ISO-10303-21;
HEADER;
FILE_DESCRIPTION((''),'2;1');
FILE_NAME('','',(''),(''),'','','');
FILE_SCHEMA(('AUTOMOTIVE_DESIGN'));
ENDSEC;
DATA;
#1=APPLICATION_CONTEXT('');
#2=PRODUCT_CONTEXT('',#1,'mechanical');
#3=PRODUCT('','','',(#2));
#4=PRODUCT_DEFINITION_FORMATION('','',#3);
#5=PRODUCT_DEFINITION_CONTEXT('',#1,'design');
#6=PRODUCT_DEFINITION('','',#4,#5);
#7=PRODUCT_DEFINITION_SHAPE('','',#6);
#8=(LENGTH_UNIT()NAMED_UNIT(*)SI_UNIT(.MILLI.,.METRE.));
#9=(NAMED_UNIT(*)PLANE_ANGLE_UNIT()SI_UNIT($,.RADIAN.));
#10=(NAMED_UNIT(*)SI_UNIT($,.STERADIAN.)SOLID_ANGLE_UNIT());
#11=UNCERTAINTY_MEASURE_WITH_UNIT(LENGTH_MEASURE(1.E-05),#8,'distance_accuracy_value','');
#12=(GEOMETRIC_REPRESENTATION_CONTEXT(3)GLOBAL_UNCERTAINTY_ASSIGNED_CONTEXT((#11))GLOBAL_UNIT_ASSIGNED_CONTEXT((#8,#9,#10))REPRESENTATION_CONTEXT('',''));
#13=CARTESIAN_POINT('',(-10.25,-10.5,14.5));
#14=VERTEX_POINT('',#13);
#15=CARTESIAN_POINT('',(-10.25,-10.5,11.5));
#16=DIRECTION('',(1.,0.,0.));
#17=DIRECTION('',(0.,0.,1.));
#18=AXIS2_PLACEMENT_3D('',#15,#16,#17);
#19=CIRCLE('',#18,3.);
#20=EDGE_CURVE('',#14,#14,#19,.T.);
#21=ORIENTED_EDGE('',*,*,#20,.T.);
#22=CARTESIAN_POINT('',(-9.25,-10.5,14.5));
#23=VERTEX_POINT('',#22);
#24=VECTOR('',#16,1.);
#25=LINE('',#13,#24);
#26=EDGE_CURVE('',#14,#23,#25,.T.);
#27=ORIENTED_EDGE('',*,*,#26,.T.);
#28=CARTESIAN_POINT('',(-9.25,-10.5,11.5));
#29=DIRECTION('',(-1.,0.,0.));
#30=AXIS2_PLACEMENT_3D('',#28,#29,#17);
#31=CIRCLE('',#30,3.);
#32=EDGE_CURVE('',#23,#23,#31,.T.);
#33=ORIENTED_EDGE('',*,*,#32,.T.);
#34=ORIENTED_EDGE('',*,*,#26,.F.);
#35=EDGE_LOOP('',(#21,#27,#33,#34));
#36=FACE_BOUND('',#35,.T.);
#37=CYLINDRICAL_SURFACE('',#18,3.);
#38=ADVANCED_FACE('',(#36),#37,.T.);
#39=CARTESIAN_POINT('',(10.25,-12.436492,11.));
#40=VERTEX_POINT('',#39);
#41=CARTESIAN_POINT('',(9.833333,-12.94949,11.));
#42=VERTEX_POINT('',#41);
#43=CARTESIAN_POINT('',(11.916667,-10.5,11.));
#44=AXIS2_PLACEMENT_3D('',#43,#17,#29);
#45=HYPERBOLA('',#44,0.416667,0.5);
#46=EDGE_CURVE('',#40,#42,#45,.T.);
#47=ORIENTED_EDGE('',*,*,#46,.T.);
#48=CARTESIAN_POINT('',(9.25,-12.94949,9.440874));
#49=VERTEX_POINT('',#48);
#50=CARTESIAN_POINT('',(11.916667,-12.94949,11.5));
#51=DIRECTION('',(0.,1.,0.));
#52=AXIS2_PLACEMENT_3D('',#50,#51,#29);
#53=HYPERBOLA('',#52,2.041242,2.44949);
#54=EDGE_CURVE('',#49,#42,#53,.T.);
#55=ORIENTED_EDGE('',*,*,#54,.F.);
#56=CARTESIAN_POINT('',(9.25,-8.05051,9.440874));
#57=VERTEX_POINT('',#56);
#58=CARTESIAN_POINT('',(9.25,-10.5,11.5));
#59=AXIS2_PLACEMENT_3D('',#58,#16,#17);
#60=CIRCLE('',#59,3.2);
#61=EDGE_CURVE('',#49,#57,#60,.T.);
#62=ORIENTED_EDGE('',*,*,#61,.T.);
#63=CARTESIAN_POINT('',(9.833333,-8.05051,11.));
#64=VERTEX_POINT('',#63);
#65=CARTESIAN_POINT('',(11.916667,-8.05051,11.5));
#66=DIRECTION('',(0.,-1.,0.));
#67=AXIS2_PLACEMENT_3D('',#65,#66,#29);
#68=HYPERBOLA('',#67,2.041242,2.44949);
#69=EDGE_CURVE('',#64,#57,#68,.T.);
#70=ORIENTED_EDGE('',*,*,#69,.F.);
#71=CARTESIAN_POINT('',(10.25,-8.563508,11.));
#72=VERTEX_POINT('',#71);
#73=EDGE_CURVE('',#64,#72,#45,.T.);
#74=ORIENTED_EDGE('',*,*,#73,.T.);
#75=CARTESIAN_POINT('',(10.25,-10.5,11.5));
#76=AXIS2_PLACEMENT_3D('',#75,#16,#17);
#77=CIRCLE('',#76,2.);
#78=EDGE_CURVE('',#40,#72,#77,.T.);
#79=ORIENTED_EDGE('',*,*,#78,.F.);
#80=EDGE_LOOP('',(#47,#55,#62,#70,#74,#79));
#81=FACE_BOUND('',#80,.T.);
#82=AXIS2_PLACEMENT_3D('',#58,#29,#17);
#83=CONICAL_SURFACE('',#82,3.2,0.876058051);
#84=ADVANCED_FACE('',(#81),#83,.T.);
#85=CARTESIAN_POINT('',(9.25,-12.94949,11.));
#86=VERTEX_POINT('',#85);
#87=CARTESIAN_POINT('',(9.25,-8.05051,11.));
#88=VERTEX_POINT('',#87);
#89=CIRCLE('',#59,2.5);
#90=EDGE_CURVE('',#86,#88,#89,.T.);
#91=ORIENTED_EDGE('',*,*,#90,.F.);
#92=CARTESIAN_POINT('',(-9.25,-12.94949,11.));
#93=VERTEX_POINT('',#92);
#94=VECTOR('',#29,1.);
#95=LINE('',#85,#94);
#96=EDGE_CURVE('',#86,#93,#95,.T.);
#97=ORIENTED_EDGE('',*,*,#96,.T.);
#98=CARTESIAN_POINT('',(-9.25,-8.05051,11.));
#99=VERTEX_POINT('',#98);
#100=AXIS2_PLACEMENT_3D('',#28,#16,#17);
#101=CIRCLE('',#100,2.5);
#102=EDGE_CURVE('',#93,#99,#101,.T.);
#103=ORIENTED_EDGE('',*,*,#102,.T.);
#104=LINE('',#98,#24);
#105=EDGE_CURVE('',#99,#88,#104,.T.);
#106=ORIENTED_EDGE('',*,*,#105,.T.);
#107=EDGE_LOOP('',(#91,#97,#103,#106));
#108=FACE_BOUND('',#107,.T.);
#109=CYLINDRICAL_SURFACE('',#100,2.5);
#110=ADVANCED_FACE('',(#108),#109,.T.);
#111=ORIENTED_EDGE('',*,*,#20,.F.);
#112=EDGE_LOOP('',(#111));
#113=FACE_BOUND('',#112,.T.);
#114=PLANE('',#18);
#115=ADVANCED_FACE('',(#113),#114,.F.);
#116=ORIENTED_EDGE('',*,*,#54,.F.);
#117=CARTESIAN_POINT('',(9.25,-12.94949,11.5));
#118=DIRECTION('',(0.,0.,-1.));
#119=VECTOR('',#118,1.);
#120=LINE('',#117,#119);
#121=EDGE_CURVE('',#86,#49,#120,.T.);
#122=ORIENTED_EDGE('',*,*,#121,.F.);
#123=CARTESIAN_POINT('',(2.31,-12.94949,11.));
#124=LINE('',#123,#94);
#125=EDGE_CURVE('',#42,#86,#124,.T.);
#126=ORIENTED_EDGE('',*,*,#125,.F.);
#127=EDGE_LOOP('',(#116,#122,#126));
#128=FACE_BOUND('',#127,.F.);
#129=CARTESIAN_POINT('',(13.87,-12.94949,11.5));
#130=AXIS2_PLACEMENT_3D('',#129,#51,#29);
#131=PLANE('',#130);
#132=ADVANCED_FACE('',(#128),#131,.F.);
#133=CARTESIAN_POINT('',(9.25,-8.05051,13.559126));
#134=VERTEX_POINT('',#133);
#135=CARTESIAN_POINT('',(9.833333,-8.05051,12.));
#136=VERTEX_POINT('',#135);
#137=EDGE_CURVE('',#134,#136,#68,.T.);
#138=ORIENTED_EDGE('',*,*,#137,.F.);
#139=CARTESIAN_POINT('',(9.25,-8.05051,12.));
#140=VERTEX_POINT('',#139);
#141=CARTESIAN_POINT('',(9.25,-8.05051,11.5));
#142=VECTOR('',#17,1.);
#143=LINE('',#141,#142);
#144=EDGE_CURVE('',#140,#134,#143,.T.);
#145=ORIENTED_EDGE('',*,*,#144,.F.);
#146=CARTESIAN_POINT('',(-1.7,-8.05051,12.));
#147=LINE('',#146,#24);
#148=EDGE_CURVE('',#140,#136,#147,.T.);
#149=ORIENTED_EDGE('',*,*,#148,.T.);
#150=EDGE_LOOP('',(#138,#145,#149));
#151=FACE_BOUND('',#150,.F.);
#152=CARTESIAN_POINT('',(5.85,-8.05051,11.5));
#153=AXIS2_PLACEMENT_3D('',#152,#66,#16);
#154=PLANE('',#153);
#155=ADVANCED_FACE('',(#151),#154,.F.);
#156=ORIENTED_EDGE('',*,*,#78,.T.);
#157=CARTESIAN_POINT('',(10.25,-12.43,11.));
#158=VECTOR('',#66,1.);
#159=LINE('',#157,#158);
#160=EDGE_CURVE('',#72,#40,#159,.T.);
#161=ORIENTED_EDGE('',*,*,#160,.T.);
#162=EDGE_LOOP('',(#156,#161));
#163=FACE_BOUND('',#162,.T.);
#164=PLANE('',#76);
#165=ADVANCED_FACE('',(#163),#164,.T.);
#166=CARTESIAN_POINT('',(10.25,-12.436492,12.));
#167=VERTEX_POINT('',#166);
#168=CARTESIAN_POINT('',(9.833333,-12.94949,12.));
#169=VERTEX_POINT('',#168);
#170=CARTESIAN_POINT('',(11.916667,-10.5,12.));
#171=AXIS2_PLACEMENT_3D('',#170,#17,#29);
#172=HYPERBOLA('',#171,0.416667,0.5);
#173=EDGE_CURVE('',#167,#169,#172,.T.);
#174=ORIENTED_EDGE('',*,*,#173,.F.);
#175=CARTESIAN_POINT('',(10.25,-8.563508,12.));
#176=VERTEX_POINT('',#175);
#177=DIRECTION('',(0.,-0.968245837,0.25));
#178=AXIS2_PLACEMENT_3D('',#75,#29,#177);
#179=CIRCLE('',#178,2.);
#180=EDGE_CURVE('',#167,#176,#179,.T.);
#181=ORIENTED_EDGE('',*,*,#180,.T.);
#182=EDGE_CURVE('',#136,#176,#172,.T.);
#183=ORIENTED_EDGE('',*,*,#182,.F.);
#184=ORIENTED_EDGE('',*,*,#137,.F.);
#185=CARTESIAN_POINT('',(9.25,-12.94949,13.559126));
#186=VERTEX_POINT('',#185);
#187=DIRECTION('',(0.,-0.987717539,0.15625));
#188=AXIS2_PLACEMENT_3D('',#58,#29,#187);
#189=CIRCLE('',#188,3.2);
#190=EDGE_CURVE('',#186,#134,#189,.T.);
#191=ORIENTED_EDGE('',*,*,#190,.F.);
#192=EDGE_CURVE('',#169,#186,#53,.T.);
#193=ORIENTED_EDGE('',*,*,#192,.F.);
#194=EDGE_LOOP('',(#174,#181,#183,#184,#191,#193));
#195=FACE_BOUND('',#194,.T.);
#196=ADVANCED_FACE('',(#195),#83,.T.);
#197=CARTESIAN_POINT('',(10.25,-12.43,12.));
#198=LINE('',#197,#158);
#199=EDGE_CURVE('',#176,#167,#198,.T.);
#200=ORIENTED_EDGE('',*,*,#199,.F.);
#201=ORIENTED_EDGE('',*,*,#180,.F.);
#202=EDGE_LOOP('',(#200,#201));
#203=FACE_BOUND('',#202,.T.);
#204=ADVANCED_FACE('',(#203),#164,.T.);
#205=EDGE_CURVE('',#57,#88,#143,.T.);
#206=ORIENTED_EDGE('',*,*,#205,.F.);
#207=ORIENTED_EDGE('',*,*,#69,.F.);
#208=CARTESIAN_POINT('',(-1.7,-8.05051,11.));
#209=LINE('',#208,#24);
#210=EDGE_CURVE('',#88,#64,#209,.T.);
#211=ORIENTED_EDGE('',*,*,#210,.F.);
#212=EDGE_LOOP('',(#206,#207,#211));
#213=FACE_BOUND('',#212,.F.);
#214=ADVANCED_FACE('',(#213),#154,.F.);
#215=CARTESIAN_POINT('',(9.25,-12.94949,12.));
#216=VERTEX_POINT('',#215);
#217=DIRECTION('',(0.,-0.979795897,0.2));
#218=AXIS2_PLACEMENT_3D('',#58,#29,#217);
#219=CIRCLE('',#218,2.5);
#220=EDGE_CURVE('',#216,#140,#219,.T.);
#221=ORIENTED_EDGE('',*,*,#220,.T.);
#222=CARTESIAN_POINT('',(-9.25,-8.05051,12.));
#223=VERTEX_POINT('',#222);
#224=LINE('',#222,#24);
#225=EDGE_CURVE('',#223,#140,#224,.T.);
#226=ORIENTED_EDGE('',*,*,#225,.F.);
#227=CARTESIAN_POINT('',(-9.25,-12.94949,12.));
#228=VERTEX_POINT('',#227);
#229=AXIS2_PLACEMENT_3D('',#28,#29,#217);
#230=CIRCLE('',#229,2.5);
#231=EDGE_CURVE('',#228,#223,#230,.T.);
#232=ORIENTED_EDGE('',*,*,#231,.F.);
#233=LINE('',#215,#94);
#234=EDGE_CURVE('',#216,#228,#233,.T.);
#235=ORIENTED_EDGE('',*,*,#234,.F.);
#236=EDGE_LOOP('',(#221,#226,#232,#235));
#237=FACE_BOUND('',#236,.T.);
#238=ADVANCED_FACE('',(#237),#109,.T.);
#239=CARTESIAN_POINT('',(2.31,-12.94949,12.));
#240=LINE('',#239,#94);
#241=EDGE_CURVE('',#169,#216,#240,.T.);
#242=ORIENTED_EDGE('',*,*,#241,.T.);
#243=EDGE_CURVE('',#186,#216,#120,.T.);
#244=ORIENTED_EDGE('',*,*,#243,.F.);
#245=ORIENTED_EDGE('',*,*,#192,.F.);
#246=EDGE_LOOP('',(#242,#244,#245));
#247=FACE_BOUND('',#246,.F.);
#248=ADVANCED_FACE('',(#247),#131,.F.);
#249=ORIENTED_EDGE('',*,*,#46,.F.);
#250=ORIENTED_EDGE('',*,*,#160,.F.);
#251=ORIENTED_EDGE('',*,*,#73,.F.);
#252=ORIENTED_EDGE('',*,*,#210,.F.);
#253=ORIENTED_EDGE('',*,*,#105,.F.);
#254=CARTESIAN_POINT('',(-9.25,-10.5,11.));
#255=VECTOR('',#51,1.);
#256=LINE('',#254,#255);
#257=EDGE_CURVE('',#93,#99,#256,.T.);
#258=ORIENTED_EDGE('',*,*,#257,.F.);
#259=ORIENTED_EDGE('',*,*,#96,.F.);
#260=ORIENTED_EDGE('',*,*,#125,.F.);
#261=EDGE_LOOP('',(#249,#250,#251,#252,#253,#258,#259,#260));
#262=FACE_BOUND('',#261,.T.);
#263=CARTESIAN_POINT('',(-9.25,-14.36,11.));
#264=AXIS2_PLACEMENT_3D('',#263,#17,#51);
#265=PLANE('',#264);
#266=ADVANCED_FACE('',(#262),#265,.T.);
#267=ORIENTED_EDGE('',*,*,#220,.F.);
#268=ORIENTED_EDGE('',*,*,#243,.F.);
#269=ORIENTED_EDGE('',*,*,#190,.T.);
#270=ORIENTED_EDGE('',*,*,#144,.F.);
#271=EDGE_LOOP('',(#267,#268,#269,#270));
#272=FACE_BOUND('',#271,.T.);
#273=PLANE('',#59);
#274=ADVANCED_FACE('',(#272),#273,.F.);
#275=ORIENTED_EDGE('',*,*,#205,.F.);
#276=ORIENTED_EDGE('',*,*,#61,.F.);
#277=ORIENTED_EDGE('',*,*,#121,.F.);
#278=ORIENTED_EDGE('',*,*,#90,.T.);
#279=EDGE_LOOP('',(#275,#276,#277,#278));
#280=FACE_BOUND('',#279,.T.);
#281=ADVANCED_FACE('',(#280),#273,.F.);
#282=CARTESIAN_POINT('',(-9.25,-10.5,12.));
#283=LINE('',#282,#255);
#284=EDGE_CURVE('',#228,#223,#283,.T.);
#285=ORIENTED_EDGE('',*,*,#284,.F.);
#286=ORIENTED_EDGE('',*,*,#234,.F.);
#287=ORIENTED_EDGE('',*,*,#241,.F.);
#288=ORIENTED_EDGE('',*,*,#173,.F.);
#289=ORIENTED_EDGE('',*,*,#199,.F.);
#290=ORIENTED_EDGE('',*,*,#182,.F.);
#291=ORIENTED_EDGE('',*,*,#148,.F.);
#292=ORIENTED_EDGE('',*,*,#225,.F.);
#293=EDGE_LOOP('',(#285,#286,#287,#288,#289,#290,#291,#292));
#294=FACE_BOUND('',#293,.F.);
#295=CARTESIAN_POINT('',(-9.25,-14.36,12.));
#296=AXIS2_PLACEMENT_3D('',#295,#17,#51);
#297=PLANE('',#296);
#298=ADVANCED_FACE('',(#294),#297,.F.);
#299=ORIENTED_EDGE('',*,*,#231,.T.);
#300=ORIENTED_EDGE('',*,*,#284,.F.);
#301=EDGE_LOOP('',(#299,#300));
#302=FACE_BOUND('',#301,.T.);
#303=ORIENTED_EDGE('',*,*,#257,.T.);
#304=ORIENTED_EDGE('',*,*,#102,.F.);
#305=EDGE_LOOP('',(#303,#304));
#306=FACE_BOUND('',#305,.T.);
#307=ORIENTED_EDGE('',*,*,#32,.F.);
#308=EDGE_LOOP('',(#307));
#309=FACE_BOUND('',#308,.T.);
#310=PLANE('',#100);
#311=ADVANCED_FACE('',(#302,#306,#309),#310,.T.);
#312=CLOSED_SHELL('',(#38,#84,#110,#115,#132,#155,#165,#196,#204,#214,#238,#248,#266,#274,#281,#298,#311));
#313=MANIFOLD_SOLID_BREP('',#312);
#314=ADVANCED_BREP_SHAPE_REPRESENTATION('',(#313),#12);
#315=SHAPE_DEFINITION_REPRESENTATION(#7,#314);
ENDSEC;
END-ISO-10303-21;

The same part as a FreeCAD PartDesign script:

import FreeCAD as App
import Part
import Sketcher


def add_polygon(sketch, points):
    """Adds a closed chain of lines whose ends are joined by coincident constraints."""
    first, n = sketch.GeometryCount, len(points)
    for a, b in zip(points, points[1:] + points[:1]):
        sketch.addGeometry(Part.LineSegment(App.Vector(*a, 0), App.Vector(*b, 0)), False)
    for i in range(n):
        sketch.addConstraint(Sketcher.Constraint("Coincident", first + i, 2, first + (i + 1) % n, 1))

doc = App.newDocument("Part")
body = doc.addObject("PartDesign::Body", "Body")

# Sketch on XZ plane
sketch1 = body.newObject("Sketcher::SketchObject", "Sketch")
sketch1.AttachmentSupport = (doc.getObject("XZ_Plane"), [""])
sketch1.MapMode = "FlatFace"
add_polygon(sketch1, [(-1, 3), (-1, 0), (19.5, 0), (19.5, 2), (18.5, 3.2), (18.5, 2.5), (0, 2.5), (0, 3)])  # lines 0-7
sketch1.addConstraint(Sketcher.Constraint("Vertical", 0))
sketch1.addConstraint(Sketcher.Constraint("Horizontal", 1))
sketch1.addConstraint(Sketcher.Constraint("Vertical", 2))
sketch1.addConstraint(Sketcher.Constraint("Vertical", 4))
sketch1.addConstraint(Sketcher.Constraint("Horizontal", 5))
sketch1.addConstraint(Sketcher.Constraint("Vertical", 6))
sketch1.addConstraint(Sketcher.Constraint("Horizontal", 7))
sketch1.addConstraint(Sketcher.Constraint("PointOnObject", 0, 2, -1))
sketch1.addConstraint(Sketcher.Constraint("PointOnObject", 5, 2, -2))
sketch1.addConstraint(Sketcher.Constraint("DistanceX", 7, 2, 7, 1, 1.0))
sketch1.addConstraint(Sketcher.Constraint("DistanceY", 0, 2, 0, 1, 3.0))
sketch1.addConstraint(Sketcher.Constraint("DistanceY", 2, 1, 2, 2, 2.0))
sketch1.addConstraint(Sketcher.Constraint("DistanceX", 1, 1, 1, 2, 20.5))
sketch1.addConstraint(Sketcher.Constraint("DistanceX", 5, 2, 5, 1, 18.5))
sketch1.addConstraint(Sketcher.Constraint("DistanceY", 4, 2, 4, 1, 0.7))
sketch1.addConstraint(Sketcher.Constraint("DistanceY", 6, 1, 6, 2, 0.5))
revolution = body.newObject("PartDesign::Revolution", "Revolution")
revolution.Profile = sketch1
revolution.ReferenceAxis = (sketch1, ["H_Axis"])
revolution.Angle = 360

# Sketch on YZ plane
sketch2 = body.newObject("Sketcher::SketchObject", "Sketch001")
sketch2.AttachmentSupport = (doc.getObject("YZ_Plane"), [""])
sketch2.MapMode = "FlatFace"
add_polygon(sketch2, [(-3.86, 0.5), (-3.86, -0.5), (3.86, -0.5), (3.86, 0.5)])  # lines 0-3
sketch2.addConstraint(Sketcher.Constraint("Vertical", 0))
sketch2.addConstraint(Sketcher.Constraint("Horizontal", 1))
sketch2.addConstraint(Sketcher.Constraint("Vertical", 2))
sketch2.addConstraint(Sketcher.Constraint("Horizontal", 3))
sketch2.addConstraint(Sketcher.Constraint("Symmetric", 0, 2, 2, 2, -1, 1))
sketch2.addConstraint(Sketcher.Constraint("DistanceY", 0, 2, 0, 1, 1.0))
sketch2.addConstraint(Sketcher.Constraint("DistanceX", 1, 1, 1, 2, 7.72))
pocket1 = body.newObject("PartDesign::Pocket", "Pocket")
pocket1.Profile = sketch2
pocket1.Length = 26
pocket1.Reversed = True

# Sketch on XY plane
sketch3 = body.newObject("Sketcher::SketchObject", "Sketch002")
sketch3.AttachmentSupport = (doc.getObject("XY_Plane"), [""])
sketch3.MapMode = "FlatFace"
add_polygon(sketch3, [(15.1, 2.44949), (23.12, 2.44949), (23.12, -2.44949), (15.1, -2.44949), (15.1, -3.86051), (30.32, -3.86051), (30.32, 7.01949), (15.1, 7.01949)])  # lines 0-7
sketch3.addConstraint(Sketcher.Constraint("Horizontal", 0))
sketch3.addConstraint(Sketcher.Constraint("Vertical", 1))
sketch3.addConstraint(Sketcher.Constraint("Horizontal", 2))
sketch3.addConstraint(Sketcher.Constraint("Vertical", 3))
sketch3.addConstraint(Sketcher.Constraint("Horizontal", 4))
sketch3.addConstraint(Sketcher.Constraint("Vertical", 5))
sketch3.addConstraint(Sketcher.Constraint("Horizontal", 6))
sketch3.addConstraint(Sketcher.Constraint("Vertical", 7))
sketch3.addConstraint(Sketcher.Constraint("Symmetric", 2, 2, 7, 2, -1))
sketch3.addConstraint(Sketcher.Constraint("DistanceX", 0, 1, 0, 2, 8.02))
sketch3.addConstraint(Sketcher.Constraint("DistanceX", 4, 1, 4, 2, 15.22))
sketch3.addConstraint(Sketcher.Constraint("DistanceY", 5, 1, 5, 2, 10.88))
sketch3.addConstraint(Sketcher.Constraint("DistanceY", 7, 2, 7, 1, 4.57))
sketch3.addConstraint(Sketcher.Constraint("DistanceX", -1, 1, 2, 2, 15.1))
sketch3.addConstraint(Sketcher.Constraint("DistanceY", 1, 2, 1, 1, 4.89898))
pocket2 = body.newObject("PartDesign::Pocket", "Pocket001")
pocket2.Profile = sketch3
pocket2.Length = 50
pocket2.Midplane = True
body2 = doc.addObject("PartDesign::Body", "Body001")
doc.recompute()

body.Placement = App.Placement(App.Vector(-9.25, -10.5, 11.5), App.Rotation(App.Vector(0, 0, 1), 0))
boolean = body2.newObject("PartDesign::Boolean", "Boolean")
boolean.Type = "Fuse"
boolean.addObjects([body])

doc.recompute()
